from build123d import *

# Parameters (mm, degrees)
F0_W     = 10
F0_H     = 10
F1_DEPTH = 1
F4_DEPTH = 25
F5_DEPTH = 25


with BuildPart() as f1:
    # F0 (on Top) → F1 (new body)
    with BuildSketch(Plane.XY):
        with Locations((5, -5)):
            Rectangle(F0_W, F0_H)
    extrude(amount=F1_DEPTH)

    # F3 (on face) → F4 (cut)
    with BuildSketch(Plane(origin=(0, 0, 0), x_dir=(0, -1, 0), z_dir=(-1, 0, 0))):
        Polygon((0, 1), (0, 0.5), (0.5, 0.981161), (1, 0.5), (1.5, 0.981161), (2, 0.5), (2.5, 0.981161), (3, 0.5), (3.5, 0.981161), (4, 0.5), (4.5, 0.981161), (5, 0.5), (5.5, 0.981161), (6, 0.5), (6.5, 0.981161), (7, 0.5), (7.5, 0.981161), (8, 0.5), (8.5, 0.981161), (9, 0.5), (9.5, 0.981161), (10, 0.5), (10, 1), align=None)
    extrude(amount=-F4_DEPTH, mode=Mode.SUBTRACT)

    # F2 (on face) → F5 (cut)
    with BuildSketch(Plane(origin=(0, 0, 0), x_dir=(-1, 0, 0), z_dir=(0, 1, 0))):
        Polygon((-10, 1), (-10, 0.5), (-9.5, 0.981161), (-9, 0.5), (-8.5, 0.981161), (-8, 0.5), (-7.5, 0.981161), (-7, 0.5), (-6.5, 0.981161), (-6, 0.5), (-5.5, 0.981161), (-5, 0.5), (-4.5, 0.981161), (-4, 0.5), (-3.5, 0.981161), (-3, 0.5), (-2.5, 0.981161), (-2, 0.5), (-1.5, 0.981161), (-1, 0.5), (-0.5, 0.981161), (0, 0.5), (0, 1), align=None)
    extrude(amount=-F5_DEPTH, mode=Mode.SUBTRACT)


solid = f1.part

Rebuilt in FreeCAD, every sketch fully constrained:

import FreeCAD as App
import Part
import Sketcher
Q = App.Units.Quantity


def add_polygon(sketch, points):
    """Adds a closed chain of lines whose ends are joined by coincident constraints."""
    first, n = sketch.GeometryCount, len(points)
    for a, b in zip(points, points[1:] + points[:1]):
        sketch.addGeometry(Part.LineSegment(App.Vector(*a, 0), App.Vector(*b, 0)), False)
    for i in range(n):
        sketch.addConstraint(Sketcher.Constraint("Coincident", first + i, 2, first + (i + 1) % n, 1))

doc = App.newDocument("Part")
body = doc.addObject("PartDesign::Body", "Body")

sketch1 = body.newObject("Sketcher::SketchObject", "Sketch")
sketch1.AttachmentSupport = (doc.getObject("XY_Plane"), [""])
sketch1.MapMode = "FlatFace"
add_polygon(sketch1, [(0, 0), (0, -10), (10, -10), (10, 0)])
sketch1.addConstraint(Sketcher.Constraint("Vertical", 0))
sketch1.addConstraint(Sketcher.Constraint("Horizontal", 1))
sketch1.addConstraint(Sketcher.Constraint("Vertical", 2))
sketch1.addConstraint(Sketcher.Constraint("Horizontal", 3))
sketch1.addConstraint(Sketcher.Constraint("Coincident", 3, 2, -1, 1))
sketch1.addConstraint(Sketcher.Constraint("Equal", 3, 0))
sketch1.addConstraint(Sketcher.Constraint("DistanceX", 1, 1, 1, 2, 10.0))
pad1 = body.newObject("PartDesign::Pad", "Pad")
pad1.Profile = sketch1
pad1.Length = 1

sketch2 = body.newObject("Sketcher::SketchObject", "Sketch001")
sketch2.AttachmentSupport = (doc.getObject("YZ_Plane"), [""])
sketch2.MapMode = "FlatFace"
add_polygon(sketch2, [(0, 1), (0, 0.5), (-0.5, 1), (-1, 0.5), (-1.5, 1), (-2, 0.5), (-2.5, 1), (-3, 0.5), (-3.5, 1), (-4, 0.5), (-4.5, 1), (-5, 0.5), (-5.5, 1), (-6, 0.5), (-6.5, 1), (-7, 0.5), (-7.5, 1), (-8, 0.5), (-8.5, 1), (-9, 0.5), (-9.5, 1), (-10, 0.5), (-10, 1)])
sketch2.addConstraint(Sketcher.Constraint("Vertical", 0))
sketch2.addConstraint(Sketcher.Constraint("Vertical", 21))
sketch2.addConstraint(Sketcher.Constraint("Horizontal", 22))
sketch2.addConstraint(Sketcher.Constraint("PointOnObject", 0, 2, -2))
sketch2.addConstraint(Sketcher.Constraint("Parallel", 1, 3))
sketch2.addConstraint(Sketcher.Constraint("Parallel", 2, 4))
sketch2.addConstraint(Sketcher.Constraint("Parallel", 3, 5))
sketch2.addConstraint(Sketcher.Constraint("Parallel", 4, 6))
sketch2.addConstraint(Sketcher.Constraint("Parallel", 5, 7))
sketch2.addConstraint(Sketcher.Constraint("Parallel", 6, 8))
sketch2.addConstraint(Sketcher.Constraint("Parallel", 7, 9))
sketch2.addConstraint(Sketcher.Constraint("Parallel", 8, 10))
sketch2.addConstraint(Sketcher.Constraint("Parallel", 9, 11))
sketch2.addConstraint(Sketcher.Constraint("Parallel", 10, 12))
sketch2.addConstraint(Sketcher.Constraint("Parallel", 11, 13))
sketch2.addConstraint(Sketcher.Constraint("Parallel", 12, 14))
sketch2.addConstraint(Sketcher.Constraint("Parallel", 13, 15))
sketch2.addConstraint(Sketcher.Constraint("Parallel", 14, 16))
sketch2.addConstraint(Sketcher.Constraint("Parallel", 15, 17))
sketch2.addConstraint(Sketcher.Constraint("Parallel", 16, 18))
sketch2.addConstraint(Sketcher.Constraint("Parallel", 17, 19))
sketch2.addConstraint(Sketcher.Constraint("Parallel", 18, 20))
sketch2.addConstraint(Sketcher.Constraint("Horizontal", 0, 2, 2, 2))
sketch2.addConstraint(Sketcher.Constraint("Horizontal", 1, 2, 3, 2))
sketch2.addConstraint(Sketcher.Constraint("Horizontal", 2, 2, 4, 2))
sketch2.addConstraint(Sketcher.Constraint("Horizontal", 3, 2, 5, 2))
sketch2.addConstraint(Sketcher.Constraint("Horizontal", 4, 2, 6, 2))
sketch2.addConstraint(Sketcher.Constraint("Horizontal", 5, 2, 7, 2))
sketch2.addConstraint(Sketcher.Constraint("Horizontal", 6, 2, 8, 2))
sketch2.addConstraint(Sketcher.Constraint("Horizontal", 7, 2, 9, 2))
sketch2.addConstraint(Sketcher.Constraint("Horizontal", 8, 2, 10, 2))
sketch2.addConstraint(Sketcher.Constraint("Horizontal", 9, 2, 11, 2))
sketch2.addConstraint(Sketcher.Constraint("Horizontal", 10, 2, 12, 2))
sketch2.addConstraint(Sketcher.Constraint("Horizontal", 11, 2, 13, 2))
sketch2.addConstraint(Sketcher.Constraint("Horizontal", 12, 2, 14, 2))
sketch2.addConstraint(Sketcher.Constraint("Horizontal", 13, 2, 15, 2))
sketch2.addConstraint(Sketcher.Constraint("Horizontal", 14, 2, 16, 2))
sketch2.addConstraint(Sketcher.Constraint("Horizontal", 15, 2, 17, 2))
sketch2.addConstraint(Sketcher.Constraint("Horizontal", 16, 2, 18, 2))
sketch2.addConstraint(Sketcher.Constraint("Horizontal", 17, 2, 19, 2))
sketch2.addConstraint(Sketcher.Constraint("Horizontal", 18, 2, 20, 2))
sketch2.addConstraint(Sketcher.Constraint("Equal", 1, 2))
sketch2.addConstraint(Sketcher.Constraint("DistanceX", 22, 1, 22, 2, 10.0))
sketch2.addConstraint(Sketcher.Constraint("DistanceY", 0, 2, 0, 1, 0.5))
sketch2.addConstraint(Sketcher.Constraint("DistanceY", -1, 1, 21, 2, 1.0))
sketch2.addConstraint(Sketcher.Constraint("Angle", 1, Q("136.099985 deg")))
pocket1 = body.newObject("PartDesign::Pocket", "Pocket")
pocket1.Profile = sketch2
pocket1.Length = 25
pocket1.Reversed = True

sketch3 = body.newObject("Sketcher::SketchObject", "Sketch002")
sketch3.AttachmentSupport = (doc.getObject("XZ_Plane"), [""])
sketch3.MapMode = "FlatFace"
add_polygon(sketch3, [(10, 1), (10, 0.5), (9.5, 1), (9, 0.5), (8.5, 1), (8, 0.5), (7.5, 1), (7, 0.5), (6.5, 1), (6, 0.5), (5.5, 1), (5, 0.5), (4.5, 1), (4, 0.5), (3.5, 1), (3, 0.5), (2.5, 1), (2, 0.5), (1.5, 1), (1, 0.5), (0.5, 1), (0, 0.5), (0, 1)])
sketch3.addConstraint(Sketcher.Constraint("Vertical", 0))
sketch3.addConstraint(Sketcher.Constraint("Vertical", 21))
sketch3.addConstraint(Sketcher.Constraint("Horizontal", 22))
sketch3.addConstraint(Sketcher.Constraint("PointOnObject", 20, 2, -2))
sketch3.addConstraint(Sketcher.Constraint("Parallel", 1, 3))
sketch3.addConstraint(Sketcher.Constraint("Parallel", 2, 4))
sketch3.addConstraint(Sketcher.Constraint("Parallel", 3, 5))
sketch3.addConstraint(Sketcher.Constraint("Parallel", 4, 6))
sketch3.addConstraint(Sketcher.Constraint("Parallel", 5, 7))
sketch3.addConstraint(Sketcher.Constraint("Parallel", 6, 8))
sketch3.addConstraint(Sketcher.Constraint("Parallel", 7, 9))
sketch3.addConstraint(Sketcher.Constraint("Parallel", 8, 10))
sketch3.addConstraint(Sketcher.Constraint("Parallel", 9, 11))
sketch3.addConstraint(Sketcher.Constraint("Parallel", 10, 12))
sketch3.addConstraint(Sketcher.Constraint("Parallel", 11, 13))
sketch3.addConstraint(Sketcher.Constraint("Parallel", 12, 14))
sketch3.addConstraint(Sketcher.Constraint("Parallel", 13, 15))
sketch3.addConstraint(Sketcher.Constraint("Parallel", 14, 16))
sketch3.addConstraint(Sketcher.Constraint("Parallel", 15, 17))
sketch3.addConstraint(Sketcher.Constraint("Parallel", 16, 18))
sketch3.addConstraint(Sketcher.Constraint("Parallel", 17, 19))
sketch3.addConstraint(Sketcher.Constraint("Parallel", 18, 20))
sketch3.addConstraint(Sketcher.Constraint("Horizontal", 0, 2, 2, 2))
sketch3.addConstraint(Sketcher.Constraint("Horizontal", 1, 2, 3, 2))
sketch3.addConstraint(Sketcher.Constraint("Horizontal", 2, 2, 4, 2))
sketch3.addConstraint(Sketcher.Constraint("Horizontal", 3, 2, 5, 2))
sketch3.addConstraint(Sketcher.Constraint("Horizontal", 4, 2, 6, 2))
sketch3.addConstraint(Sketcher.Constraint("Horizontal", 5, 2, 7, 2))
sketch3.addConstraint(Sketcher.Constraint("Horizontal", 6, 2, 8, 2))
sketch3.addConstraint(Sketcher.Constraint("Horizontal", 7, 2, 9, 2))
sketch3.addConstraint(Sketcher.Constraint("Horizontal", 8, 2, 10, 2))
sketch3.addConstraint(Sketcher.Constraint("Horizontal", 9, 2, 11, 2))
sketch3.addConstraint(Sketcher.Constraint("Horizontal", 10, 2, 12, 2))
sketch3.addConstraint(Sketcher.Constraint("Horizontal", 11, 2, 13, 2))
sketch3.addConstraint(Sketcher.Constraint("Horizontal", 12, 2, 14, 2))
sketch3.addConstraint(Sketcher.Constraint("Horizontal", 13, 2, 15, 2))
sketch3.addConstraint(Sketcher.Constraint("Horizontal", 14, 2, 16, 2))
sketch3.addConstraint(Sketcher.Constraint("Horizontal", 15, 2, 17, 2))
sketch3.addConstraint(Sketcher.Constraint("Horizontal", 16, 2, 18, 2))
sketch3.addConstraint(Sketcher.Constraint("Horizontal", 17, 2, 19, 2))
sketch3.addConstraint(Sketcher.Constraint("Horizontal", 18, 2, 20, 2))
sketch3.addConstraint(Sketcher.Constraint("Equal", 1, 2))
sketch3.addConstraint(Sketcher.Constraint("DistanceX", 22, 1, 22, 2, 10.0))
sketch3.addConstraint(Sketcher.Constraint("DistanceY", 0, 2, 0, 1, 0.5))
sketch3.addConstraint(Sketcher.Constraint("DistanceY", -1, 1, 21, 2, 1.0))
sketch3.addConstraint(Sketcher.Constraint("Angle", 1, Q("136.099985 deg")))
pocket2 = body.newObject("PartDesign::Pocket", "Pocket001")
pocket2.Profile = sketch3
pocket2.Length = 25
pocket2.Reversed = True

doc.recompute()
